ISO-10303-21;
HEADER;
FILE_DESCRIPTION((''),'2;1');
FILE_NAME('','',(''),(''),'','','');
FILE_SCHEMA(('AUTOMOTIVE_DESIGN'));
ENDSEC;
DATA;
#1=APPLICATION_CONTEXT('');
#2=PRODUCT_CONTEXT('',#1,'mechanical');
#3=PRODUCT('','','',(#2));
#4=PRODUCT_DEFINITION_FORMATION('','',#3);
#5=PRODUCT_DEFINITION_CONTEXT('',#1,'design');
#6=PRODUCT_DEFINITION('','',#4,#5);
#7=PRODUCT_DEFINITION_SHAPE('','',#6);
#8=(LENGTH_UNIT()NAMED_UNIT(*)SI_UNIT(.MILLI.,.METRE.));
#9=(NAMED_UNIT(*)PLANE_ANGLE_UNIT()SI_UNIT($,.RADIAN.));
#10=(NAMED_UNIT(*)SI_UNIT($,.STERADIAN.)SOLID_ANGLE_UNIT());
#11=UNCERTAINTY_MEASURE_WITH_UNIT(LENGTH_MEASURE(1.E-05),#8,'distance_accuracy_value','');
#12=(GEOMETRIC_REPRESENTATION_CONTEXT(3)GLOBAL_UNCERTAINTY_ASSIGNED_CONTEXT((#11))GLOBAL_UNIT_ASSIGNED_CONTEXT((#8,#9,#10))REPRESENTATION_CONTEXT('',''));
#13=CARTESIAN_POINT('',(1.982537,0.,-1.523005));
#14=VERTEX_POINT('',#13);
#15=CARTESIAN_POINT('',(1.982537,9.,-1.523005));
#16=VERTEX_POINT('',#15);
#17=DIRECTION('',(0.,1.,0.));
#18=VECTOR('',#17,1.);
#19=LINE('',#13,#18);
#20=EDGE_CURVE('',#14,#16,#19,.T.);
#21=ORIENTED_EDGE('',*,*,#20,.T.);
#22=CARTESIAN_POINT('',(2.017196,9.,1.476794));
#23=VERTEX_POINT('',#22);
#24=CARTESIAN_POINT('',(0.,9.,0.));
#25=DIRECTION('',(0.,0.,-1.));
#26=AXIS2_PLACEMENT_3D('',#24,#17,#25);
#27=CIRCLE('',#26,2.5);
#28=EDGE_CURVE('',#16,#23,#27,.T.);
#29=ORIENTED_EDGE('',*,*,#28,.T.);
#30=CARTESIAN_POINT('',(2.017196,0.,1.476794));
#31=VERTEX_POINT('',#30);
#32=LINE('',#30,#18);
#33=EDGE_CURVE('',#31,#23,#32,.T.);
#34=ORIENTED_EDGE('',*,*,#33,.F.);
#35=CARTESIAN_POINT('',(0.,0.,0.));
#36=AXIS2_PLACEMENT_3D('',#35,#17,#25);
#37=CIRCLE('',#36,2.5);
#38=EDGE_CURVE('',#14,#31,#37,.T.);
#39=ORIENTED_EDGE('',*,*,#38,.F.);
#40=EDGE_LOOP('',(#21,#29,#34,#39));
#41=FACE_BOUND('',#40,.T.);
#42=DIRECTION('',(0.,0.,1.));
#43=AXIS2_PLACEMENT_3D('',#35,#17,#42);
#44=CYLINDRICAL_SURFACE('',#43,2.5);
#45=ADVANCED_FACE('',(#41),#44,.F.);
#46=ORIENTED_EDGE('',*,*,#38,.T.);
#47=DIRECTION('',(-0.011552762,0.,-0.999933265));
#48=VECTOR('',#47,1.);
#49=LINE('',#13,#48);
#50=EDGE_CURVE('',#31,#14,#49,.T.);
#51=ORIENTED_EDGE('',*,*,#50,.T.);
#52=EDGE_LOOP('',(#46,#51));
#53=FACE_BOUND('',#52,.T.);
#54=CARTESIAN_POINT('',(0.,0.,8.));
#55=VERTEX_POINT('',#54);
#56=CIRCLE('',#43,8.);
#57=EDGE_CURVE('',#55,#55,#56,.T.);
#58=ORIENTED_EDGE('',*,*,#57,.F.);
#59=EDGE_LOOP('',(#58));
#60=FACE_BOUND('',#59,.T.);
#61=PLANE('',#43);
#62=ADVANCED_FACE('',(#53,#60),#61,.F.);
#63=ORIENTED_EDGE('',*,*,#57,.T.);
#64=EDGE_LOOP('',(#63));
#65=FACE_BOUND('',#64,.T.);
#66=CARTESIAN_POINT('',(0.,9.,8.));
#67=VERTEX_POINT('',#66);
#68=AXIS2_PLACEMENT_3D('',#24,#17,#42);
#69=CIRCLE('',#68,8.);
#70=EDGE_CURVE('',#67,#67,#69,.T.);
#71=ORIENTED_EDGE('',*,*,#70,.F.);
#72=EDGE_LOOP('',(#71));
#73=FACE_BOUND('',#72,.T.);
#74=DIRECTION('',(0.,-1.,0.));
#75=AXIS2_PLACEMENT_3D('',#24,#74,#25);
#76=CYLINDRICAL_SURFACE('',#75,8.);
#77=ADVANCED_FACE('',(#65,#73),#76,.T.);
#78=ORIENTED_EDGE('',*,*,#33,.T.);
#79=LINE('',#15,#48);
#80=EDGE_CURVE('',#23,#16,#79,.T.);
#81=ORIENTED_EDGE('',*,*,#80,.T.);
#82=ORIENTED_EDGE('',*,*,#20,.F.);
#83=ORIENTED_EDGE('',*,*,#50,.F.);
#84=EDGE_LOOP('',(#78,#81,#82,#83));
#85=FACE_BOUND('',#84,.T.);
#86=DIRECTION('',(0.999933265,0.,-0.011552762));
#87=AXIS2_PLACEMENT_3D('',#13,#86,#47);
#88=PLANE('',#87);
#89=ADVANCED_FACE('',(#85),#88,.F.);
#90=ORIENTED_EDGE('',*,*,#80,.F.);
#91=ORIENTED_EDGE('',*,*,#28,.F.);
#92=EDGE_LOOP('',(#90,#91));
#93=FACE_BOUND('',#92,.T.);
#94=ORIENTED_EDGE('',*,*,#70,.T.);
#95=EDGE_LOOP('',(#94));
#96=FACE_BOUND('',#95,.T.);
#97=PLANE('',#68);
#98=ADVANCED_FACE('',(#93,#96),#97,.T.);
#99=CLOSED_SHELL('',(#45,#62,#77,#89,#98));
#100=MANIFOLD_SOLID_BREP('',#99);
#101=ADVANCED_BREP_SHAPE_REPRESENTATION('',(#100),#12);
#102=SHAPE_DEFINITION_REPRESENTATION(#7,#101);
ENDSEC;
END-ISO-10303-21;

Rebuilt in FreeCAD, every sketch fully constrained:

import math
import FreeCAD as App
import Part
import Sketcher

doc = App.newDocument("Part")
body = doc.addObject("PartDesign::Body", "Body")

sketch1 = doc.addObject("Sketcher::SketchObject", "Sketch")
body.addObject(sketch1)
sketch1.AttachmentSupport = (doc.XZ_Plane, [""])
sketch1.MapMode = "FlatFace"
sketch1.addGeometry(Part.Circle(App.Vector(0, 0, 0), App.Vector(0, 0, 1), 8), False)
sketch1.addConstraint(Sketcher.Constraint("Coincident", 0, 3, -1, 1))
sketch1.addConstraint(Sketcher.Constraint("Diameter", 0, 16.0))
pad1 = doc.addObject("PartDesign::Pad", "Pad")
body.addObject(pad1)
pad1.Profile = sketch1
pad1.Length = 9
pad1.Reversed = True

sketch2 = doc.addObject("Sketcher::SketchObject", "Sketch001")
body.addObject(sketch2)
sketch2.AttachmentSupport = (doc.XZ_Plane, [""])
sketch2.MapMode = "FlatFace"
sketch2.AttachmentOffset = App.Placement(App.Vector(0, 0, -9), App.Rotation())
sketch2.addGeometry(Part.LineSegment(App.Vector(2.017196, 1.476794, 0), App.Vector(1.982537, -1.523005, 0)), False)
sketch2.addGeometry(Part.ArcOfCircle(Part.Circle(App.Vector(0, 0, 0), App.Vector(0, 0, 1), 2.5), math.radians(36.207958), math.radians(322.468163)), False)
sketch2.addConstraint(Sketcher.Constraint("Coincident", 0, 1, 1, 1))
sketch2.addConstraint(Sketcher.Constraint("Coincident", 1, 2, 0, 2))
sketch2.addConstraint(Sketcher.Constraint("Coincident", 1, 3, -1, 1))
sketch2.addConstraint(Sketcher.Constraint("Radius", 1, 2.5))
sketch2.addConstraint(Sketcher.Constraint("Distance", 0, 3.0))
sketch2.addConstraint(Sketcher.Constraint("DistanceY", 1, 2, 0, 1, 2.9998))
pocket1 = doc.addObject("PartDesign::Pocket", "Pocket")
body.addObject(pocket1)
pocket1.Profile = sketch2
pocket1.Type = "ThroughAll"
pocket1.Reversed = True

doc.recompute()
